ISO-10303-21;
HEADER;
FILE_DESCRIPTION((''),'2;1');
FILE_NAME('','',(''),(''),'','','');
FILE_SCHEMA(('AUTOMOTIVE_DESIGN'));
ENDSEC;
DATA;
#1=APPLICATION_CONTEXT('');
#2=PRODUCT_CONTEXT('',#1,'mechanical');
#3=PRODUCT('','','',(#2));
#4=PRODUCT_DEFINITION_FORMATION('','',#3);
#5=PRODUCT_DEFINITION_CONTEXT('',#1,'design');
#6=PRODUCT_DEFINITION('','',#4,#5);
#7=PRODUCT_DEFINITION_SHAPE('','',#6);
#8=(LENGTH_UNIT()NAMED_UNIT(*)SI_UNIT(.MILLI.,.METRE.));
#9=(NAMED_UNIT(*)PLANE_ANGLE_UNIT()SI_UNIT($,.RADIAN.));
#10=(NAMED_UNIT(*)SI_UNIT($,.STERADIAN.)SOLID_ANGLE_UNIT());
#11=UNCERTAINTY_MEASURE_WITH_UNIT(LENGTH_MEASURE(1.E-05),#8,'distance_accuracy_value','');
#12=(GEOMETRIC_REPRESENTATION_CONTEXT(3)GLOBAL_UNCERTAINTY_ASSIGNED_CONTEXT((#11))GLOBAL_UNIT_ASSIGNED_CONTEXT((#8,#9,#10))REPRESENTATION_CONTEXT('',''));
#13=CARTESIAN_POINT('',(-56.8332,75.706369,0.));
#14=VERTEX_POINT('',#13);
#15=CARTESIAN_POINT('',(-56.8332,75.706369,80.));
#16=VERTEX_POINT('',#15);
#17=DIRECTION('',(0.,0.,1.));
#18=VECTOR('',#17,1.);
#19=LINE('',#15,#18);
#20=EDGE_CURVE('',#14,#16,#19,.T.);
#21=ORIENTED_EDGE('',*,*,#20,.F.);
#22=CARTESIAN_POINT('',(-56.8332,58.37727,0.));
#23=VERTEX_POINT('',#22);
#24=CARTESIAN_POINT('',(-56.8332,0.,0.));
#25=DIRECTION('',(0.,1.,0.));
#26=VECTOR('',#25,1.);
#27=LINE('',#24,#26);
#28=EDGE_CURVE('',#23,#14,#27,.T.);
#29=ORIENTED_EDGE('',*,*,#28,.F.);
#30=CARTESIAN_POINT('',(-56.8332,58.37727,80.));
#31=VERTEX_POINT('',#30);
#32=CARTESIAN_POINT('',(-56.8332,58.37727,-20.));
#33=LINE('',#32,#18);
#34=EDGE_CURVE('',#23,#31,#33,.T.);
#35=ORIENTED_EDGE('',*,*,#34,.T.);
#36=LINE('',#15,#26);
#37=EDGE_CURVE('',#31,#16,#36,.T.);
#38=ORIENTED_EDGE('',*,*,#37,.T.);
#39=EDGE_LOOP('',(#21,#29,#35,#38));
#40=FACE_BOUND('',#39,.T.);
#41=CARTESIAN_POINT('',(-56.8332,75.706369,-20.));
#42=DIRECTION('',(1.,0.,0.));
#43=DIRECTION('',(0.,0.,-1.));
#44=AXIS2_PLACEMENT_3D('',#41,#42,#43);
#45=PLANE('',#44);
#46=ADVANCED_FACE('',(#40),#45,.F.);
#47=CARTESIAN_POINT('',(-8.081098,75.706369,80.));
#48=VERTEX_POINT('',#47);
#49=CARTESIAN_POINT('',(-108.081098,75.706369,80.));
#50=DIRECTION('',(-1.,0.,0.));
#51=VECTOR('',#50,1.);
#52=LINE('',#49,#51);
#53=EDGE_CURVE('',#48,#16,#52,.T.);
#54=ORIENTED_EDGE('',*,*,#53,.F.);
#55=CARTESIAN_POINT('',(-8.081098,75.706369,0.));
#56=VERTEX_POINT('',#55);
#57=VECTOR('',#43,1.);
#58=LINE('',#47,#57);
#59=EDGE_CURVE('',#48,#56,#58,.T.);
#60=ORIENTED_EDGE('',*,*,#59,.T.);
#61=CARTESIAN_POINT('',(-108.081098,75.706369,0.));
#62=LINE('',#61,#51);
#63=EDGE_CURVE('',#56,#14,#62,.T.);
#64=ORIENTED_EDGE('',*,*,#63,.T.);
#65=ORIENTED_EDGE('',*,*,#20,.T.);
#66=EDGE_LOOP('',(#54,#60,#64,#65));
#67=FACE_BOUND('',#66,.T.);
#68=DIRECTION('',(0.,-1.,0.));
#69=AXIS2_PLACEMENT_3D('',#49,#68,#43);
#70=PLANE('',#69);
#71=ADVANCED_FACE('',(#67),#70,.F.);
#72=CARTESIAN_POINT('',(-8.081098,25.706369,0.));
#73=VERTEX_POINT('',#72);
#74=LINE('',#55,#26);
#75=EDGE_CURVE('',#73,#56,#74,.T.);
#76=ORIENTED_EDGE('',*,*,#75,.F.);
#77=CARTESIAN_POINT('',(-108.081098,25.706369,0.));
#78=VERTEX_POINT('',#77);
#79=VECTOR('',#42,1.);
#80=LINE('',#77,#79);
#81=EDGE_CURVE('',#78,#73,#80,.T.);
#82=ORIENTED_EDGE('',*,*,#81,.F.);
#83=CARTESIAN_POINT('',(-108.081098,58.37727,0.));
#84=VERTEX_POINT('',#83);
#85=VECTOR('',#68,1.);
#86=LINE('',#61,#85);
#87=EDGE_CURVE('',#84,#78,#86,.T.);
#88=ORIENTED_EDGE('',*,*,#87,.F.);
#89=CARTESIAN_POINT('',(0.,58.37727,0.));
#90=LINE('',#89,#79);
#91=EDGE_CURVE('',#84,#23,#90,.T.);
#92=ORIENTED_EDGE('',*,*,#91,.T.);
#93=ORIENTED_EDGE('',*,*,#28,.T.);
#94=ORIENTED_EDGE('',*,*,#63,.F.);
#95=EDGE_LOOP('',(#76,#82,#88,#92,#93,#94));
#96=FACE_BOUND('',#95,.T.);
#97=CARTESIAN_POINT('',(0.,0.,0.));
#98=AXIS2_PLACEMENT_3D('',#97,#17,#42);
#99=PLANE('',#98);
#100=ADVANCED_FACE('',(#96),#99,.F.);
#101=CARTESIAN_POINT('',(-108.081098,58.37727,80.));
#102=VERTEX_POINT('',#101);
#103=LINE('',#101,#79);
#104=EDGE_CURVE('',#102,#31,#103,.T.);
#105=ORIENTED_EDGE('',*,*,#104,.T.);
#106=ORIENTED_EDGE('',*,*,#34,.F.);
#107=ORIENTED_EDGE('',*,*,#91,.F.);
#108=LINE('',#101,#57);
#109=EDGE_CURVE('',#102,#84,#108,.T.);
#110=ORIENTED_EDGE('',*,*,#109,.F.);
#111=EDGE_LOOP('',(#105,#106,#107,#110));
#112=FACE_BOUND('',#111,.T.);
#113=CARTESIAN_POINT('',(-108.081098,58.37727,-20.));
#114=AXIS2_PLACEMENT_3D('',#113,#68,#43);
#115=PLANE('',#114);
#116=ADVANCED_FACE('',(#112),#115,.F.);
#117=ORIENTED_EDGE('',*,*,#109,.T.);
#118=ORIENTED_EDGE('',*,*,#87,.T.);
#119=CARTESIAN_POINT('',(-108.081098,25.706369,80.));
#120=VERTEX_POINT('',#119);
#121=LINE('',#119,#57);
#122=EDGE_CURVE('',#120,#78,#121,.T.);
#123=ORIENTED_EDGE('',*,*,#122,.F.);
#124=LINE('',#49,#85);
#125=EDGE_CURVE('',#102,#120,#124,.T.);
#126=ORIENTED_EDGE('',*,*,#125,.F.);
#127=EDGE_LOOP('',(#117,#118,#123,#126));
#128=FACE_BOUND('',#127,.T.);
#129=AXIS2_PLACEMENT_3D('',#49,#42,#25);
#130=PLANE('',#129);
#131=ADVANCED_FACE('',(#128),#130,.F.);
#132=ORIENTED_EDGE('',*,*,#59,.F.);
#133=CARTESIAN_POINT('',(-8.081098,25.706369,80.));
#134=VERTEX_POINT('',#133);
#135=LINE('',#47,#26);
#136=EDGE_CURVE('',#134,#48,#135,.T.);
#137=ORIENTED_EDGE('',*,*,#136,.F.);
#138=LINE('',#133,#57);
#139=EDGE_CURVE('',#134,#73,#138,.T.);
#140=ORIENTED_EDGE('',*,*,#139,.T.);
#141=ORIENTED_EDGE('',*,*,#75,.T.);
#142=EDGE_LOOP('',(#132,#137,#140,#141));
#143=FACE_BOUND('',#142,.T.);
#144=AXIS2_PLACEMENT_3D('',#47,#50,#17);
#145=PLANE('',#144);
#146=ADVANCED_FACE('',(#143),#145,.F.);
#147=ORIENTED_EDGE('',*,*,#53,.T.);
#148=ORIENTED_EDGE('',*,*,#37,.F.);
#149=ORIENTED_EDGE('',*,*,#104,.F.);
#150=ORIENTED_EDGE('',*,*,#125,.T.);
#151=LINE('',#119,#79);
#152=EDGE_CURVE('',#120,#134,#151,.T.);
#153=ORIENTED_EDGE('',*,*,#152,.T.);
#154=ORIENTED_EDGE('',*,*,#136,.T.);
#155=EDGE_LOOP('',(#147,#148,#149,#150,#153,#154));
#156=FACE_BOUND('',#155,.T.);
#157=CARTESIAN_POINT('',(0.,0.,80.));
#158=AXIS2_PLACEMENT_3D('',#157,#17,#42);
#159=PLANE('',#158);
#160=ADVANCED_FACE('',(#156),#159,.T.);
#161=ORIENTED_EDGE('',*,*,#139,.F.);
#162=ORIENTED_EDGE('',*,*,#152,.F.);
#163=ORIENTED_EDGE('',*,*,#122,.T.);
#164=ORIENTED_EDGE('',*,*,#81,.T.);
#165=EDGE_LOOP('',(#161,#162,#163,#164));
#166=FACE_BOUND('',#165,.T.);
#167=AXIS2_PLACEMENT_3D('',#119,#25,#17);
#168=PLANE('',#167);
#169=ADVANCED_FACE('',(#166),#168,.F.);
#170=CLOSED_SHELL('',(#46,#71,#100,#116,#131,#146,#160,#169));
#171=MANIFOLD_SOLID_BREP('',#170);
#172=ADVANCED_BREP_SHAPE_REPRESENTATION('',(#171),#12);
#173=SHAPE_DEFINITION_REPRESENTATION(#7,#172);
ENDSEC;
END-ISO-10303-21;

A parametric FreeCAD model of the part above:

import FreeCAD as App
import Part
import Sketcher
from FreeCAD import Vector
Q = App.Units.Quantity


def add_polygon(sketch, points):
    """Adds a closed chain of lines whose ends are joined by coincident constraints."""
    first, n = sketch.GeometryCount, len(points)
    for a, b in zip(points, points[1:] + points[:1]):
        sketch.addGeometry(Part.LineSegment(App.Vector(*a, 0), App.Vector(*b, 0)), False)
    for i in range(n):
        sketch.addConstraint(Sketcher.Constraint("Coincident", first + i, 2, first + (i + 1) % n, 1))

doc = App.newDocument("Part")
params = doc.addObject("Spreadsheet::Sheet", "Params")
for row, (alias, value) in enumerate([
    ("sketch1_width", "100 mm"),
    ("sketch1_height", "50 mm"),
    ("pad1_length", "80 mm"),
    ("pocket1_length", "100 mm"),
], start=1):
    params.set(f"A{row}", alias)
    params.set(f"B{row}", "=" + value)
    params.setAlias(f"B{row}", alias)

body = doc.addObject("PartDesign::Body", "Body")

sketch1 = doc.addObject("Sketcher::SketchObject", "Sketch")
body.addObject(sketch1)
sketch1.AttachmentSupport = (doc.XY_Plane, [""])
sketch1.MapMode = "FlatFace"
add_polygon(sketch1, [(-108, 76), (-108, 26), (-8, 26), (-8, 76)])
sketch1.addConstraint([
    Sketcher.Constraint("Vertical", 0),
    Sketcher.Constraint("Horizontal", 1),
    Sketcher.Constraint("Vertical", 2),
    Sketcher.Constraint("Horizontal", 3),
    Sketcher.Constraint("DistanceX", 1, 1, 1, 2, Q("100 mm")),
    Sketcher.Constraint("DistanceY", 0, 2, 0, 1, Q("50 mm")),
    Sketcher.Constraint("DistanceY", -1, 1, 0, 2, Q("25.706369 mm")),
    Sketcher.Constraint("DistanceX", 0, 2, -1, 1, Q("108.081098 mm")),
])
sketch1.setExpression("Constraints[8]", "Params.sketch1_width")
sketch1.setExpression("Constraints[9]", "Params.sketch1_height")
pad1 = doc.addObject("PartDesign::Pad", "Pad")
body.addObject(pad1)
pad1.Profile = sketch1
pad1.setExpression("Length", "Params.pad1_length")

sketch2 = doc.addObject("Sketcher::SketchObject", "Sketch001")
body.addObject(sketch2)
sketch2.AttachmentSupport = (doc.XY_Plane, [""])
sketch2.MapMode = "FlatFace"
sketch2.AttachmentOffset = App.Placement(Vector(0, 0, 80), App.Rotation())
add_polygon(sketch2, [(-57, 58), (-57, 88), (-112, 88), (-112, 58)])
sketch2.addConstraint([
    Sketcher.Constraint("Vertical", 0),
    Sketcher.Constraint("Horizontal", 1),
    Sketcher.Constraint("Vertical", 2),
    Sketcher.Constraint("Horizontal", 3),
    Sketcher.Constraint("DistanceX", 0, 2, -1, 1, Q("56.8332 mm")),
    Sketcher.Constraint("DistanceX", 1, 2, 1, 1, Q("55.347933 mm")),
    Sketcher.Constraint("DistanceY", 0, 1, 0, 2, Q("29.288893 mm")),
    Sketcher.Constraint("DistanceY", -1, 1, 2, 2, Q("58.37727 mm")),
])
pocket1 = doc.addObject("PartDesign::Pocket", "Pocket")
body.addObject(pocket1)
pocket1.Profile = sketch2
pocket1.setExpression("Length", "Params.pocket1_length")

doc.recompute()
